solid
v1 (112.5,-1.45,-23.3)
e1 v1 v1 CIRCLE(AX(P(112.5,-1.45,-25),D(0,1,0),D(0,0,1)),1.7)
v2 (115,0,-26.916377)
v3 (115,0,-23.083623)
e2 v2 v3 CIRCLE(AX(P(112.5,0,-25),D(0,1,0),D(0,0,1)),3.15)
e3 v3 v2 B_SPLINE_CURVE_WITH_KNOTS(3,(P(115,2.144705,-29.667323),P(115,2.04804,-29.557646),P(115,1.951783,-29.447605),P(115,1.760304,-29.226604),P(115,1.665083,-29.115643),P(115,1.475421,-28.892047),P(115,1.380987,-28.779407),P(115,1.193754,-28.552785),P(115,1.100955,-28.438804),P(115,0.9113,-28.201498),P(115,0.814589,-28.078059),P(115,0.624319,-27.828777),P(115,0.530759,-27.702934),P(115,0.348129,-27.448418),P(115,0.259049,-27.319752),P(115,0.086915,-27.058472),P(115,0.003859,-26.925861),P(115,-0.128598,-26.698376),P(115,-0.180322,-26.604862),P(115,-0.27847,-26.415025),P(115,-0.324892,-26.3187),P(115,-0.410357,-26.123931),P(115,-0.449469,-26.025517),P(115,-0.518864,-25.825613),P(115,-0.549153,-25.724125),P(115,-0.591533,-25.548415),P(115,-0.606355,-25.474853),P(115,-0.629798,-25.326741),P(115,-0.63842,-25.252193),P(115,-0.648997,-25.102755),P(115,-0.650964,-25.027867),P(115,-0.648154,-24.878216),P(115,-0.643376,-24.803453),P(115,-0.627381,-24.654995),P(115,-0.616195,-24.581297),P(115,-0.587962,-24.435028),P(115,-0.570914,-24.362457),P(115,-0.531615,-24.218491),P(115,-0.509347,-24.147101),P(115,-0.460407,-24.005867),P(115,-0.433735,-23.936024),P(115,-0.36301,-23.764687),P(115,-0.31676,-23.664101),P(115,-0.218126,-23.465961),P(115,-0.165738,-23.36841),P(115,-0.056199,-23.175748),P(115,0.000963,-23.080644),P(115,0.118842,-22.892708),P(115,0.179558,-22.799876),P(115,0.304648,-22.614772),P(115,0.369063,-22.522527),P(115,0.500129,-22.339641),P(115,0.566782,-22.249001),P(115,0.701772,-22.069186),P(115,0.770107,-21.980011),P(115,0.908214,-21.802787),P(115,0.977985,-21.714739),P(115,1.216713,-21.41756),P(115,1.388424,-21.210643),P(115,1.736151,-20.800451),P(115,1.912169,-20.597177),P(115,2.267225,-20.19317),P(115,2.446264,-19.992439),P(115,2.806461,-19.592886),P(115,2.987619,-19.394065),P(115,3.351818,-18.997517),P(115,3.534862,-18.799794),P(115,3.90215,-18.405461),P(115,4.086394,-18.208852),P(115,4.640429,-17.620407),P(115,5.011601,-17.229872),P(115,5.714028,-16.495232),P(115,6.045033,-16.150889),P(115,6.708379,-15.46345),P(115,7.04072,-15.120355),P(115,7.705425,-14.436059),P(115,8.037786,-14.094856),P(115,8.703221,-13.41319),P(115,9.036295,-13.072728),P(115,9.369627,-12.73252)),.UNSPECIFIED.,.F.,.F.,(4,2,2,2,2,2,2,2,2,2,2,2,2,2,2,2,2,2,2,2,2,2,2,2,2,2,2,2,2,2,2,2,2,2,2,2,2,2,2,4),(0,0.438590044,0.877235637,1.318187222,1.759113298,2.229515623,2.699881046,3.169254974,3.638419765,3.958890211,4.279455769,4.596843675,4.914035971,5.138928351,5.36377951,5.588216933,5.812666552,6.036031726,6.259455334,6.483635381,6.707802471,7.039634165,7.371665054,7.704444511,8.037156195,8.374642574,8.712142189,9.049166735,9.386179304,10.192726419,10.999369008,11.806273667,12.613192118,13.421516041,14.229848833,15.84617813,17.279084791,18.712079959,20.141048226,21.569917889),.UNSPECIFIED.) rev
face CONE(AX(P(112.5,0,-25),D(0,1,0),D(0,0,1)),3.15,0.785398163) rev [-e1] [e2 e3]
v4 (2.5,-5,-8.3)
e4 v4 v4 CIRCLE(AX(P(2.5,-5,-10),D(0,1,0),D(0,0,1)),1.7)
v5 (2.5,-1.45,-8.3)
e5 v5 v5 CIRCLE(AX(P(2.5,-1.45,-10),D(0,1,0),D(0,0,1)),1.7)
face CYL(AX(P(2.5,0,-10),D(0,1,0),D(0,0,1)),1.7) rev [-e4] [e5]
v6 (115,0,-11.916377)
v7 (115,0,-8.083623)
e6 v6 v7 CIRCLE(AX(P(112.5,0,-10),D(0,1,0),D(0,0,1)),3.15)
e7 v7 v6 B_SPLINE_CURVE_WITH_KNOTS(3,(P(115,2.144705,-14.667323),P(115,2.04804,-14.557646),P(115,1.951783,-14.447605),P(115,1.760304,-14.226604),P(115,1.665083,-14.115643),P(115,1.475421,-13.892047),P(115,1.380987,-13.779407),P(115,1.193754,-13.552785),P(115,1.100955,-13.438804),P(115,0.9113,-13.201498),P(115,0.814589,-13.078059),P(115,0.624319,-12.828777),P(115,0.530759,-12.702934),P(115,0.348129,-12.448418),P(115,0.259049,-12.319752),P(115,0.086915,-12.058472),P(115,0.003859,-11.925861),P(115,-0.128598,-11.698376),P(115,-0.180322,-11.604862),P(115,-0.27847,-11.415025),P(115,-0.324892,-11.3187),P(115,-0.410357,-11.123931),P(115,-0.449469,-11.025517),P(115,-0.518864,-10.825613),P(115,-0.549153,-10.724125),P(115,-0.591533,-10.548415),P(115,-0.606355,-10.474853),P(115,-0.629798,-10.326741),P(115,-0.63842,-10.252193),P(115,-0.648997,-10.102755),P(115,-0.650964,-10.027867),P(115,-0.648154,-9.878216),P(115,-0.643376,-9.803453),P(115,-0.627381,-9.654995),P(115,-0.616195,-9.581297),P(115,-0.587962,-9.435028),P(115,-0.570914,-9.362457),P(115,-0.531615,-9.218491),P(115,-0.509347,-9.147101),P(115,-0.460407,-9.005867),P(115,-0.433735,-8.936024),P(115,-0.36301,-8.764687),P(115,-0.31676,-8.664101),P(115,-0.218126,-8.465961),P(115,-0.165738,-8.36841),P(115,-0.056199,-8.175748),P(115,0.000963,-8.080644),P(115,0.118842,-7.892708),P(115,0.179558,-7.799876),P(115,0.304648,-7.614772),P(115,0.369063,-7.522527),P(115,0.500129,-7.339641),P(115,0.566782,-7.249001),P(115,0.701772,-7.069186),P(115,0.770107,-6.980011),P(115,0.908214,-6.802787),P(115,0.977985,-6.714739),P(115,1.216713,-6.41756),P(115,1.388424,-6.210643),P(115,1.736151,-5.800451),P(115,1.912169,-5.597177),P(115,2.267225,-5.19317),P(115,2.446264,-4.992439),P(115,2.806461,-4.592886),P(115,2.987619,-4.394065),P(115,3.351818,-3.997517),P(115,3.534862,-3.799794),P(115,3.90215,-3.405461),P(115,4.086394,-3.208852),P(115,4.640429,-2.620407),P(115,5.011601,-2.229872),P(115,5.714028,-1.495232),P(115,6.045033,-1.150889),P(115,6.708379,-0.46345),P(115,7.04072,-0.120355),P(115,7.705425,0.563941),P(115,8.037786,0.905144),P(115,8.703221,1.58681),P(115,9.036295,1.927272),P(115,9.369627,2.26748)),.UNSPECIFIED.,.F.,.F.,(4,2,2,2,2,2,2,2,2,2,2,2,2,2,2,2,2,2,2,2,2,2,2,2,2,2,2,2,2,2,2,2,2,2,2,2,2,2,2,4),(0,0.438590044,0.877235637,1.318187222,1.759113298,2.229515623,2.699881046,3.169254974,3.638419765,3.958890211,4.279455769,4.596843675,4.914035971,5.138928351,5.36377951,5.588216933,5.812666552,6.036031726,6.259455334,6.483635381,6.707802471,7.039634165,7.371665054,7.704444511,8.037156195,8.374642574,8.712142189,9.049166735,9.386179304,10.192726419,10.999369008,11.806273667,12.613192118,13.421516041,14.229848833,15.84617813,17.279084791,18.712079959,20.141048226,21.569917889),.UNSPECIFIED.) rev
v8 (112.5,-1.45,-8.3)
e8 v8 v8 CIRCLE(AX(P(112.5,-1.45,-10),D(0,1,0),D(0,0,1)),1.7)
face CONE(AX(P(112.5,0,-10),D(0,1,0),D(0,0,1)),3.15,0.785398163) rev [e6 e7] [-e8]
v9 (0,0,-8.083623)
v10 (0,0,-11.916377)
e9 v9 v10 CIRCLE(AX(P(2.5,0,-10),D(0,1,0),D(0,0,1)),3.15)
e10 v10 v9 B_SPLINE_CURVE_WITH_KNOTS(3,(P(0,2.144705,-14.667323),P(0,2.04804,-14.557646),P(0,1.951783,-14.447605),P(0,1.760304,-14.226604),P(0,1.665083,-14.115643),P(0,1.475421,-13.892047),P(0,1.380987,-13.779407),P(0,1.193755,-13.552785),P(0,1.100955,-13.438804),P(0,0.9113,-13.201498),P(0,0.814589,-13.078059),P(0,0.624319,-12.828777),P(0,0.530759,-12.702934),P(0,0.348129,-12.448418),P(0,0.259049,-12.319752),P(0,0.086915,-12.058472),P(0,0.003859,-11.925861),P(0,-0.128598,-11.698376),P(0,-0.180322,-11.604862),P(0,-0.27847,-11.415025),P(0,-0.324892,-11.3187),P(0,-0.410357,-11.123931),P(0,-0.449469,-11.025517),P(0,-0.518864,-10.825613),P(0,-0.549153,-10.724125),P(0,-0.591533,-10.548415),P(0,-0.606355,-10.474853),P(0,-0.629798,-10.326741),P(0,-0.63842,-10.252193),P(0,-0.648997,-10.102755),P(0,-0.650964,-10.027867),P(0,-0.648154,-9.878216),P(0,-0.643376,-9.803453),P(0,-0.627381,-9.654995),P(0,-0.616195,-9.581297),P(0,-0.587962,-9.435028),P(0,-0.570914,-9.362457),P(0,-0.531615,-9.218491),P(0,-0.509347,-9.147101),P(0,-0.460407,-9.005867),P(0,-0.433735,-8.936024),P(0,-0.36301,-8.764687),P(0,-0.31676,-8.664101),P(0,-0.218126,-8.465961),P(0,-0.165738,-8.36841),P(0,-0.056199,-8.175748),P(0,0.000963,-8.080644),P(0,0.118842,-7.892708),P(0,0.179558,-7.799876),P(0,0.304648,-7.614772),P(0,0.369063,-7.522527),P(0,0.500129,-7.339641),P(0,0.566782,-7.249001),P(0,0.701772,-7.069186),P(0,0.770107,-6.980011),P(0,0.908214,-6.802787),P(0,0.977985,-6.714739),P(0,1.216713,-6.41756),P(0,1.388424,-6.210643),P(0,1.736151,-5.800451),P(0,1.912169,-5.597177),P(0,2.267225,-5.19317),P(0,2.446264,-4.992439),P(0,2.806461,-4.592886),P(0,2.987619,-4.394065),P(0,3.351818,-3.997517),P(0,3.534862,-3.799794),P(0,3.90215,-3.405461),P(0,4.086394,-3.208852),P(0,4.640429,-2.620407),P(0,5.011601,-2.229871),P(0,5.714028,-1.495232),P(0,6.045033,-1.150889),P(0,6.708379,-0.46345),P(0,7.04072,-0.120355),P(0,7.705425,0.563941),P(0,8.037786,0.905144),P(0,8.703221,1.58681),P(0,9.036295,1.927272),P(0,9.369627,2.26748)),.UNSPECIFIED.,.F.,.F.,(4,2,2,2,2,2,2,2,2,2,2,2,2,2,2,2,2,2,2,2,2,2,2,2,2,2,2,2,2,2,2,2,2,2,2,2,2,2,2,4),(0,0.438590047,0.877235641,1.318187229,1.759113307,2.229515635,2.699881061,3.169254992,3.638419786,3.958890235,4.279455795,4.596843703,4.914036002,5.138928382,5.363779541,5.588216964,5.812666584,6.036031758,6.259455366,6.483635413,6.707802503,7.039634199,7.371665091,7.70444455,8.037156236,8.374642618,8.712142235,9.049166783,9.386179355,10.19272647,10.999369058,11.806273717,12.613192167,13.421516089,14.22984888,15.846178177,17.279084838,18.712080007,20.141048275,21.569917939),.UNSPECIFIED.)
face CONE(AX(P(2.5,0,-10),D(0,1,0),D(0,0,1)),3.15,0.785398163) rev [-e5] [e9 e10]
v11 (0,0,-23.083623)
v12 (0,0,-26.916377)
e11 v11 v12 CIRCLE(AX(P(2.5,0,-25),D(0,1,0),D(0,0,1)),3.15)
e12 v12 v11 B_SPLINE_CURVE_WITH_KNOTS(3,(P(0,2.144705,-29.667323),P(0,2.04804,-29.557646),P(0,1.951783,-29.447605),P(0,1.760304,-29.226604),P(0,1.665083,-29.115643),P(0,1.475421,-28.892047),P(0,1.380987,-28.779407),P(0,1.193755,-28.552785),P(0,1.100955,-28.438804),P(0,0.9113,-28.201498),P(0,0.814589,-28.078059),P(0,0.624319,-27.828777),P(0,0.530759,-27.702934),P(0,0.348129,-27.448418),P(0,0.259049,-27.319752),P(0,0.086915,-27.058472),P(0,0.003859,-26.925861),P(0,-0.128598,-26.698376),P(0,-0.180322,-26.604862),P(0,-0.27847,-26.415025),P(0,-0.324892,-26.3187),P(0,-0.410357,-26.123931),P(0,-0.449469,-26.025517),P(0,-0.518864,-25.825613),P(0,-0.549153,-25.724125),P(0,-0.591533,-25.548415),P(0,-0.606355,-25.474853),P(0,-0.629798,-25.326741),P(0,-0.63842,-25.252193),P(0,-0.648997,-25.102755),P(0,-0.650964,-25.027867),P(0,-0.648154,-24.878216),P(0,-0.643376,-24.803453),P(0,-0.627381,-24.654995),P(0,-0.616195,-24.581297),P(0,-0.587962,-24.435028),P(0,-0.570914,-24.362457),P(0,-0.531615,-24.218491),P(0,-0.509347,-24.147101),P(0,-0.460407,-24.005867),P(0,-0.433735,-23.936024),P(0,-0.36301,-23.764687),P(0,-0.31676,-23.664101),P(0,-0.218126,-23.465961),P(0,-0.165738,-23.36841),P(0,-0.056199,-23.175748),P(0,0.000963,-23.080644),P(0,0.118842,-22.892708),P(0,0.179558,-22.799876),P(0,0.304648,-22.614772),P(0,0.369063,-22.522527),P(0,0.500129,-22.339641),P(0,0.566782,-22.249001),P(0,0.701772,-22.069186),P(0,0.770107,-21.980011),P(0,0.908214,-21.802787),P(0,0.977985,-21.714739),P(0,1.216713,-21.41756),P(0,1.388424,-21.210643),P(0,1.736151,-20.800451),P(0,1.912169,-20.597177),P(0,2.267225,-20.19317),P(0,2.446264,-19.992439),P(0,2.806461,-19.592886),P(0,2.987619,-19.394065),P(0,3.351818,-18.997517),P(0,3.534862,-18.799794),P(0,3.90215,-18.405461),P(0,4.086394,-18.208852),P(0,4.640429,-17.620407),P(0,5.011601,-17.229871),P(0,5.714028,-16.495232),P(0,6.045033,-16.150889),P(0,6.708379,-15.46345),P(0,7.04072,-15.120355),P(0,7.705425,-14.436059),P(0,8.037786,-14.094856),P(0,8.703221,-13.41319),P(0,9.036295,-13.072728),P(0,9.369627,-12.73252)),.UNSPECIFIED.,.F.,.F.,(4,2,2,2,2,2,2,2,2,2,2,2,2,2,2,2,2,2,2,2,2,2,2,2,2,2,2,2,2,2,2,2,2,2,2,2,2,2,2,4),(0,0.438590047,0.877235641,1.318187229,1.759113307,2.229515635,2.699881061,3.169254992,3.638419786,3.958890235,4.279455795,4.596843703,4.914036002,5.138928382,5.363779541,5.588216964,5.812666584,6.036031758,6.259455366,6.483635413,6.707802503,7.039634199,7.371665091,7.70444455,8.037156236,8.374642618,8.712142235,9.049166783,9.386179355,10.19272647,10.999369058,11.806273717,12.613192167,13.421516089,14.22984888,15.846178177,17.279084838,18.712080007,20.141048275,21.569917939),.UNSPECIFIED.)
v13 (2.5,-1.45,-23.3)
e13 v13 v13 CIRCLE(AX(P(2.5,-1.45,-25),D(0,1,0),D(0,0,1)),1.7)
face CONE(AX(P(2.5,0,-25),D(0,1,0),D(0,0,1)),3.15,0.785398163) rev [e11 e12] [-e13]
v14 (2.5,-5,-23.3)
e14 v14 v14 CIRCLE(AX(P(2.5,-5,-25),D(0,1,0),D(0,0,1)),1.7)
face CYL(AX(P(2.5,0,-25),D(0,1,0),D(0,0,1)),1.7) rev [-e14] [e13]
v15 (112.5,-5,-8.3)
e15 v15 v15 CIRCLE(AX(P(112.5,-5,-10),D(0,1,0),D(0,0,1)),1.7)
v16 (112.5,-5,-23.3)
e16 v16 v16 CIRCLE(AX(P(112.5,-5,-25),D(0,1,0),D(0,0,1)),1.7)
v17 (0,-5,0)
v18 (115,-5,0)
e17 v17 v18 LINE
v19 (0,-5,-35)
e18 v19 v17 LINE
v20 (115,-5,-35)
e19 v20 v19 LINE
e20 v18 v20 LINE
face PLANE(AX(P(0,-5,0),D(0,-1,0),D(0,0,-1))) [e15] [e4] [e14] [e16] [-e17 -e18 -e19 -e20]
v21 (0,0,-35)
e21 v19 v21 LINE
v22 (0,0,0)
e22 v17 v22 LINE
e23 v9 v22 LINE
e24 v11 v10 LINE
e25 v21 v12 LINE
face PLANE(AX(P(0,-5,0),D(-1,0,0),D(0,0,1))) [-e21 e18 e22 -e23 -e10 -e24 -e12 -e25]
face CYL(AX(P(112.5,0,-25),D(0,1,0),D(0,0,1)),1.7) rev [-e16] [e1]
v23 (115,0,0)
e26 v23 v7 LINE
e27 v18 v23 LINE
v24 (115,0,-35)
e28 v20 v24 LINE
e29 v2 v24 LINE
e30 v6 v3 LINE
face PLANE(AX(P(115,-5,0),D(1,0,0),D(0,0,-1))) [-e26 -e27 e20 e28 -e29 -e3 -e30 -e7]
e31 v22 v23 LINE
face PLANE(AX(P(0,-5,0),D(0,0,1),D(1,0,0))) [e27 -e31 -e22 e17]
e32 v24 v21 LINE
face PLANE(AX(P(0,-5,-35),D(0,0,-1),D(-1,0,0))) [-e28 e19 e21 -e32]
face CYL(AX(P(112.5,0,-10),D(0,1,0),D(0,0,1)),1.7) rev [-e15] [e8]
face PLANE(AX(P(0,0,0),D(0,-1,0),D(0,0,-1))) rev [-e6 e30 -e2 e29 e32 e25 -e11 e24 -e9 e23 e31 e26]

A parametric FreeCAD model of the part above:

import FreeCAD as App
import Part
import Sketcher

V = App.Vector


def add_polygon(sketch, points):
    """Adds a closed chain of lines whose ends are joined by coincident constraints."""
    first, n = sketch.GeometryCount, len(points)
    for a, b in zip(points, points[1:] + points[:1]):
        sketch.addGeometry(Part.LineSegment(App.Vector(*a, 0), App.Vector(*b, 0)), False)
    for i in range(n):
        sketch.addConstraint(Sketcher.Constraint("Coincident", first + i, 2, first + (i + 1) % n, 1))

doc = App.newDocument("Part")
params = doc.addObject("Spreadsheet::Sheet", "Params")
for row, (alias, value) in enumerate([
    ("sketch1_width", "115 mm"),
    ("sketch1_height", "35 mm"),
    ("pad1_length", "5 mm"),
    ("sketch2_diameter", "3.4 mm"),
    ("hole_diameter", "3.4 mm"),
    ("hole_csink_diameter", "6.3 mm"),
], start=1):
    params.set(f"A{row}", alias)
    params.set(f"B{row}", "=" + value)
    params.setAlias(f"B{row}", alias)

body = doc.addObject("PartDesign::Body", "Body")

# Sketch on XZ plane
sketch1 = body.newObject("Sketcher::SketchObject", "Sketch")
sketch1.AttachmentSupport = (doc.getObject("XZ_Plane"), [""])
sketch1.MapMode = "FlatFace"
add_polygon(sketch1, [(0, -35), (0, 0), (115, 0), (115, -35)])  # lines 0-3
sketch1.addConstraint([
    Sketcher.Constraint("Vertical", 0),
    Sketcher.Constraint("Horizontal", 1),
    Sketcher.Constraint("Vertical", 2),
    Sketcher.Constraint("Horizontal", 3),
    Sketcher.Constraint("Coincident", 0, 2, -1, 1),
    Sketcher.Constraint("DistanceX", 1, 1, 1, 2, 115.0),
    Sketcher.Constraint("DistanceY", 0, 1, 0, 2, 35.0),
])
sketch1.setExpression("Constraints[9]", "Params.sketch1_width")
sketch1.setExpression("Constraints[10]", "Params.sketch1_height")
pad1 = body.newObject("PartDesign::Pad", "Pad")
pad1.Profile = sketch1
pad1.setExpression("Length", "Params.pad1_length")

# Sketch on XZ plane
sketch2 = body.newObject("Sketcher::SketchObject", "Sketch001")
sketch2.AttachmentSupport = (doc.getObject("XZ_Plane"), [""])
sketch2.MapMode = "FlatFace"
sketch2.addGeometry([
    Part.Circle(V(2.5, -25, 0), V(0, 0, 1), 1.7),
    Part.Circle(V(2.5, -10, 0), V(0, 0, 1), 1.7),
    Part.Circle(V(112.5, -25, 0), V(0, 0, 1), 1.7),
    Part.Circle(V(112.5, -10, 0), V(0, 0, 1), 1.7),
], False)
sketch2.addConstraint([
    Sketcher.Constraint("Equal", 0, 1),
    Sketcher.Constraint("Equal", 1, 2),
    Sketcher.Constraint("Equal", 2, 3),
    Sketcher.Constraint("Horizontal", 0, 3, 2, 3),
    Sketcher.Constraint("Horizontal", 1, 3, 3, 3),
    Sketcher.Constraint("Vertical", 0, 3, 1, 3),
    Sketcher.Constraint("Vertical", 2, 3, 3, 3),
    Sketcher.Constraint("Diameter", 0, 3.4),
    Sketcher.Constraint("DistanceY", 0, 3, -1, 1, 25.0),
    Sketcher.Constraint("DistanceY", 1, 3, -1, 1, 10.0),
    Sketcher.Constraint("DistanceX", 0, 3, 2, 3, 110.0),
    Sketcher.Constraint("DistanceX", -1, 1, 0, 3, 2.5),
])
sketch2.setExpression("Constraints[7]", "Params.sketch2_diameter")
doc.recompute()
hole = body.newObject("PartDesign::Hole", "Hole")
hole.Profile = sketch2
hole.ThreadType = "None"
hole.setExpression("Diameter", "Params.hole_diameter")
hole.DepthType = "ThroughAll"
hole.HoleCutType = "Countersink"
hole.setExpression("HoleCutDiameter", "Params.hole_csink_diameter")
hole.HoleCutCountersinkAngle = 90
hole.Reversed = True

doc.recompute()
